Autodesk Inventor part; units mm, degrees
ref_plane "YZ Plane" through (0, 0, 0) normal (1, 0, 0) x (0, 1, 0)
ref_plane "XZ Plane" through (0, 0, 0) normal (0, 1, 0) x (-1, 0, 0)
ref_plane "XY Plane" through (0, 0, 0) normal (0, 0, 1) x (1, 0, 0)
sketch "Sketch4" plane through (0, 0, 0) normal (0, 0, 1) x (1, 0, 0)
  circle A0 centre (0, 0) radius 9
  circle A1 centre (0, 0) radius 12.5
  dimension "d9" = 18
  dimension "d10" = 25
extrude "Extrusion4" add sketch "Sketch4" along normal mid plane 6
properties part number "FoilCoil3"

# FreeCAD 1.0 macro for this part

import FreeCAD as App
import Part
import Sketcher

V = App.Vector
Q = App.Units.Quantity

doc = App.newDocument("Part")
body = doc.addObject("PartDesign::Body", "Body")

# Sketch on XY plane
sketch1 = body.newObject("Sketcher::SketchObject", "Sketch")
sketch1.AttachmentSupport = (doc.getObject("XY_Plane"), [""])
sketch1.MapMode = "FlatFace"
sketch1.addGeometry(Part.Circle(V(0, 0, 0), V(0, 0, 1), 12), False)
sketch1.addGeometry(Part.Circle(V(0, 0, 0), V(0, 0, 1), 9), False)
sketch1.addConstraint(Sketcher.Constraint("Coincident", 0, 3, -1, 1))
sketch1.addConstraint(Sketcher.Constraint("Coincident", 1, 3, -1, 1))
sketch1.addConstraint(Sketcher.Constraint("Diameter", 0, Q("25 mm")))
sketch1.addConstraint(Sketcher.Constraint("Diameter", 1, Q("18 mm")))
pad1 = body.newObject("PartDesign::Pad", "Pad")
pad1.Profile = sketch1
pad1.Length = 6
pad1.Midplane = True

doc.recompute()
